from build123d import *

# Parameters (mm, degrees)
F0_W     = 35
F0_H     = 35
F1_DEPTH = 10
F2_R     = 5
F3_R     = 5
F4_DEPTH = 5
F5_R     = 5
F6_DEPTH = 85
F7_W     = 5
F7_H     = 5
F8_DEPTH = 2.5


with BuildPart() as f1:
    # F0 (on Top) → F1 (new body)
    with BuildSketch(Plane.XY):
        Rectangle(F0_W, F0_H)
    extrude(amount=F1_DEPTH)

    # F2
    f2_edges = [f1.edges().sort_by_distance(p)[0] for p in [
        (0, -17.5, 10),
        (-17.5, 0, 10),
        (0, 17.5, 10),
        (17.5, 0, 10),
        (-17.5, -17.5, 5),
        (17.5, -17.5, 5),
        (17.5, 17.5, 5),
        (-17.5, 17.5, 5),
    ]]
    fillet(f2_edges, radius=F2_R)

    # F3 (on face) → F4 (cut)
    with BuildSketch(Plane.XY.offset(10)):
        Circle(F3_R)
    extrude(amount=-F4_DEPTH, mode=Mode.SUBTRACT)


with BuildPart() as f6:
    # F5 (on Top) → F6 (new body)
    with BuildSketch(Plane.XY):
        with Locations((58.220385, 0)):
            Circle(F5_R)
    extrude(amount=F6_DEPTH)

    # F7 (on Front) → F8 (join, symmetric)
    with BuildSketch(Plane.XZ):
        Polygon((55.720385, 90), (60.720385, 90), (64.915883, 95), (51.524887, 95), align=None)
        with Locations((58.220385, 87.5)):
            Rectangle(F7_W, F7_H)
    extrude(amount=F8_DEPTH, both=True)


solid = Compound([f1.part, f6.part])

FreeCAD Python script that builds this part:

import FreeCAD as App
import Part
import Sketcher

V = App.Vector
Q = App.Units.Quantity


def edges_at(feature, points):
    """Names of the edges that pass closest to the given points."""
    edges = feature.Shape.Edges
    near = lambda p: min(range(len(edges)), key=lambda i: edges[i].distToShape(Part.Vertex(*p))[0])
    return sorted({f"Edge{near(p) + 1}" for p in points})

doc = App.newDocument("Part")
body = doc.addObject("PartDesign::Body", "Body")

# Sketch on XY plane
sketch1 = body.newObject("Sketcher::SketchObject", "Sketch")
sketch1.AttachmentSupport = (doc.getObject("XY_Plane"), [""])
sketch1.MapMode = "FlatFace"
sketch1.addGeometry([
    Part.LineSegment(V(-18, 18, 0), V(-18, -18, 0)),
    Part.LineSegment(V(-18, -18, 0), V(18, -18, 0)),
    Part.LineSegment(V(18, -18, 0), V(18, 18, 0)),
    Part.LineSegment(V(18, 18, 0), V(-18, 18, 0)),
], False)
sketch1.addConstraint([
    Sketcher.Constraint("Coincident", 0, 2, 1, 1),
    Sketcher.Constraint("Coincident", 1, 2, 2, 1),
    Sketcher.Constraint("Coincident", 2, 2, 3, 1),
    Sketcher.Constraint("Coincident", 3, 2, 0, 1),
    Sketcher.Constraint("Vertical", 0),
    Sketcher.Constraint("Horizontal", 1),
    Sketcher.Constraint("Vertical", 2),
    Sketcher.Constraint("Horizontal", 3),
    Sketcher.Constraint("Symmetric", 0, 2, 2, 2, -1, 1),
    Sketcher.Constraint("Equal", 3, 0),
    Sketcher.Constraint("DistanceX", 1, 1, 1, 2, Q("35 mm")),
])
pad1 = body.newObject("PartDesign::Pad", "Pad")
pad1.Profile = sketch1
pad1.Length = 10
doc.recompute()

fillet = body.newObject("PartDesign::Fillet", "Fillet")
fillet.Base = (pad1, edges_at(pad1, [
    (0, -17.5, 10),
    (-17.5, 0, 10),
    (0, 17.5, 10),
    (17.5, 0, 10),
    (-17.5, -17.5, 5),
    (17.5, -17.5, 5),
    (17.5, 17.5, 5),
    (-17.5, 17.5, 5),
]))
fillet.Radius = 5

# Sketch on XY plane
sketch2 = body.newObject("Sketcher::SketchObject", "Sketch001")
sketch2.AttachmentSupport = (doc.getObject("XY_Plane"), [""])
sketch2.MapMode = "FlatFace"
sketch2.AttachmentOffset = App.Placement(V(0, 0, 10), App.Rotation())
sketch2.addGeometry(Part.Circle(V(0, 0, 0), V(0, 0, 1), 5), False)
sketch2.addConstraint([
    Sketcher.Constraint("Coincident", 0, 3, -1, 1),
    Sketcher.Constraint("Diameter", 0, Q("10 mm")),
])
pocket1 = body.newObject("PartDesign::Pocket", "Pocket")
pocket1.Profile = sketch2
pocket1.Length = 5
body2 = doc.addObject("PartDesign::Body", "Body001")

# Sketch on XY plane
sketch3 = body2.newObject("Sketcher::SketchObject", "Sketch002")
sketch3.AttachmentSupport = (doc.getObject("XY_Plane001"), [""])
sketch3.MapMode = "FlatFace"
sketch3.addGeometry(Part.Circle(V(58, 0, 0), V(0, 0, 1), 5), False)
sketch3.addConstraint([
    Sketcher.Constraint("PointOnObject", 0, 3, -1),
    Sketcher.Constraint("Diameter", 0, Q("10 mm")),
    Sketcher.Constraint("DistanceX", -1, 1, 0, 3, Q("58.220385 mm")),
])
pad2 = body2.newObject("PartDesign::Pad", "Pad001")
pad2.Profile = sketch3
pad2.Length = 85

# Sketch on XZ plane
sketch4 = body2.newObject("Sketcher::SketchObject", "Sketch003")
sketch4.AttachmentSupport = (doc.getObject("XZ_Plane001"), [""])
sketch4.MapMode = "FlatFace"
sketch4.addGeometry([
    Part.LineSegment(V(61, 90, 0), V(65, 95, 0)),  # 0
    Part.LineSegment(V(65, 95, 0), V(52, 95, 0)),  # 1
    Part.LineSegment(V(52, 95, 0), V(56, 90, 0)),  # 2
    Part.LineSegment(V(56, 90, 0), V(56, 85, 0)),  # 3
    Part.LineSegment(V(56, 85, 0), V(61, 85, 0)),  # 4
    Part.LineSegment(V(61, 85, 0), V(61, 90, 0)),  # 5
], False)
sketch4.addConstraint([
    Sketcher.Constraint("Coincident", 0, 2, 1, 1),
    Sketcher.Constraint("Coincident", 1, 2, 2, 1),
    Sketcher.Constraint("Coincident", 2, 2, 3, 1),
    Sketcher.Constraint("Coincident", 3, 2, 4, 1),
    Sketcher.Constraint("Coincident", 4, 2, 5, 1),
    Sketcher.Constraint("Coincident", 5, 2, 0, 1),
    Sketcher.Constraint("Horizontal", 1),
    Sketcher.Constraint("Vertical", 3),
    Sketcher.Constraint("Horizontal", 4),
    Sketcher.Constraint("Vertical", 5),
    Sketcher.Constraint("Horizontal", 2, 2, 5, 2),
    Sketcher.Constraint("Equal", 4, 3),
    Sketcher.Constraint("Equal", 0, 2),
    Sketcher.Constraint("DistanceX", 4, 1, 4, 2, Q("5 mm")),
    Sketcher.Constraint("Angle", 0, Q("50.000001 deg")),
    Sketcher.Constraint("DistanceY", -1, 1, 0, 2, Q("95 mm")),
    Sketcher.Constraint("DistanceY", -1, 1, 2, 2, Q("90 mm")),
    Sketcher.Constraint("DistanceX", -1, 1, 0, 2, Q("64.915883 mm")),
])
pad3 = body2.newObject("PartDesign::Pad", "Pad002")
pad3.Profile = sketch4
pad3.Length = 5
pad3.Midplane = True

doc.recompute()
